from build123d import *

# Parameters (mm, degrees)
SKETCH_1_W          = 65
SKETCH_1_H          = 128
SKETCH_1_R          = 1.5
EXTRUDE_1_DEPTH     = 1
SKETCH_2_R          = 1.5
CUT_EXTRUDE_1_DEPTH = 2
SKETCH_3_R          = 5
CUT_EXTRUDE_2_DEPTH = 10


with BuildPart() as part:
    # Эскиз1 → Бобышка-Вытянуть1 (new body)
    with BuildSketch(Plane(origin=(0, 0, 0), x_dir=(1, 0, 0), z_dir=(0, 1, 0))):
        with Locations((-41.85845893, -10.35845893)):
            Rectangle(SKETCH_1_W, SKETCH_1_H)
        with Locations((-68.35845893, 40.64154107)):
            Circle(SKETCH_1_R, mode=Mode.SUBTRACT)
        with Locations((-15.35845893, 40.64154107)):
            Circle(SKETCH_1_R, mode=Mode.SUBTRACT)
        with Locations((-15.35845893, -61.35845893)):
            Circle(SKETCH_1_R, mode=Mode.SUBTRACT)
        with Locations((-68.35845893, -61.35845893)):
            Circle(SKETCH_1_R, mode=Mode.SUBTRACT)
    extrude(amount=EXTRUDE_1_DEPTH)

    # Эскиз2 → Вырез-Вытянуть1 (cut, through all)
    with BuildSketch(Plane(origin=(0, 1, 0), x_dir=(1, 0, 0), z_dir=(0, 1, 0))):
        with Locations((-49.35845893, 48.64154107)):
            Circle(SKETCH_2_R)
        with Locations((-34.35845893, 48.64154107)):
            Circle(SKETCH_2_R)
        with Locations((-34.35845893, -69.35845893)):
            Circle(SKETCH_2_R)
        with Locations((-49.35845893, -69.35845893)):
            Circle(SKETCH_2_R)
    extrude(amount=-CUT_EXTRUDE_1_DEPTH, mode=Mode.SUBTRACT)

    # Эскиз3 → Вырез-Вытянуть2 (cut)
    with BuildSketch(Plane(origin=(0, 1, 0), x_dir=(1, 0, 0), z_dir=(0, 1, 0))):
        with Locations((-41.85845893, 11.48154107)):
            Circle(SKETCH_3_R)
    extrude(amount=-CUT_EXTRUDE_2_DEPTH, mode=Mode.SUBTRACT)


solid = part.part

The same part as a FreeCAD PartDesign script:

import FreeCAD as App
import Part
import Sketcher

doc = App.newDocument("Part")
params = doc.addObject("Spreadsheet::Sheet", "Params")
for row, (alias, value) in enumerate([
    ("sketch1_diameter", "3 mm"),
    ("sketch1_width", "65 mm"),
    ("sketch1_height", "128 mm"),
    ("pad1_length", "1 mm"),
    ("sketch2_diameter", "3 mm"),
    ("sketch3_diameter", "10 mm"),
    ("pocket2_length", "10 mm"),
], start=1):
    params.set(f"A{row}", alias)
    params.set(f"B{row}", "=" + value)
    params.setAlias(f"B{row}", alias)

body = doc.addObject("PartDesign::Body", "Body")

sketch1 = body.newObject("Sketcher::SketchObject", "Sketch")
sketch1.AttachmentSupport = (doc.getObject("XZ_Plane"), [""])
sketch1.MapMode = "FlatFace"
sketch1.addGeometry([
    Part.LineSegment(App.Vector(-74.358459, -53.641541, 0), App.Vector(-74.358459, 74.358459, 0)),
    Part.LineSegment(App.Vector(-74.358459, 74.358459, 0), App.Vector(-9.358459, 74.358459, 0)),
    Part.LineSegment(App.Vector(-9.358459, 74.358459, 0), App.Vector(-9.358459, -53.641541, 0)),
    Part.LineSegment(App.Vector(-9.358459, -53.641541, 0), App.Vector(-74.358459, -53.641541, 0)),
    Part.Circle(App.Vector(-68.358459, 61.358459, 0), App.Vector(0, 0, 1), 1.5),
    Part.Circle(App.Vector(-15.358459, 61.358459, 0), App.Vector(0, 0, 1), 1.5),
    Part.Circle(App.Vector(-68.358459, -40.641541, 0), App.Vector(0, 0, 1), 1.5),
    Part.Circle(App.Vector(-15.358459, -40.641541, 0), App.Vector(0, 0, 1), 1.5),
], False)
sketch1.addConstraint([
    Sketcher.Constraint("Coincident", 0, 2, 1, 1),
    Sketcher.Constraint("Coincident", 1, 2, 2, 1),
    Sketcher.Constraint("Coincident", 2, 2, 3, 1),
    Sketcher.Constraint("Coincident", 3, 2, 0, 1),
    Sketcher.Constraint("Vertical", 0),
    Sketcher.Constraint("Horizontal", 1),
    Sketcher.Constraint("Vertical", 2),
    Sketcher.Constraint("Horizontal", 3),
    Sketcher.Constraint("Equal", 4, 5),
    Sketcher.Constraint("Equal", 5, 6),
    Sketcher.Constraint("Equal", 6, 7),
    Sketcher.Constraint("Horizontal", 4, 3, 5, 3),
    Sketcher.Constraint("Horizontal", 6, 3, 7, 3),
    Sketcher.Constraint("Vertical", 4, 3, 6, 3),
    Sketcher.Constraint("Vertical", 5, 3, 7, 3),
    Sketcher.Constraint("Diameter", 4, 3.0),
    Sketcher.Constraint("DistanceX", 1, 1, 1, 2, 65.0),
    Sketcher.Constraint("DistanceY", 0, 1, 0, 2, 128.0),
    Sketcher.Constraint("DistanceX", 4, 3, 5, 3, 53.0),
    Sketcher.Constraint("DistanceY", 6, 3, 4, 3, 102.0),
    Sketcher.Constraint("DistanceX", 0, 2, 4, 3, 6.0),
    Sketcher.Constraint("DistanceY", 4, 3, 0, 2, 13.0),
    Sketcher.Constraint("DistanceX", 4, 3, -1, 1, 68.358459),
    Sketcher.Constraint("DistanceY", -1, 1, 4, 3, 61.358459),
])
sketch1.setExpression("Constraints[15]", "Params.sketch1_diameter")
sketch1.setExpression("Constraints[16]", "Params.sketch1_width")
sketch1.setExpression("Constraints[17]", "Params.sketch1_height")
pad1 = body.newObject("PartDesign::Pad", "Pad")
pad1.Profile = sketch1
pad1.setExpression("Length", "Params.pad1_length")
pad1.Reversed = True

sketch2 = body.newObject("Sketcher::SketchObject", "Sketch001")
sketch2.AttachmentSupport = (doc.getObject("XZ_Plane"), [""])
sketch2.MapMode = "FlatFace"
sketch2.AttachmentOffset = App.Placement(App.Vector(0, 0, -1), App.Rotation())
sketch2.addGeometry([
    Part.Circle(App.Vector(-49.358459, -48.641541, 0), App.Vector(0, 0, 1), 1.5),
    Part.Circle(App.Vector(-34.358459, -48.641541, 0), App.Vector(0, 0, 1), 1.5),
    Part.Circle(App.Vector(-34.358459, 69.358459, 0), App.Vector(0, 0, 1), 1.5),
    Part.Circle(App.Vector(-49.358459, 69.358459, 0), App.Vector(0, 0, 1), 1.5),
], False)
sketch2.addConstraint([
    Sketcher.Constraint("Equal", 0, 1),
    Sketcher.Constraint("Equal", 1, 2),
    Sketcher.Constraint("Equal", 2, 3),
    Sketcher.Constraint("Horizontal", 0, 3, 1, 3),
    Sketcher.Constraint("Horizontal", 2, 3, 3, 3),
    Sketcher.Constraint("Vertical", 1, 3, 2, 3),
    Sketcher.Constraint("Vertical", 0, 3, 3, 3),
    Sketcher.Constraint("Diameter", 0, 3.0),
    Sketcher.Constraint("DistanceX", 0, 3, 1, 3, 15.0),
    Sketcher.Constraint("DistanceY", 1, 3, 2, 3, 118.0),
    Sketcher.Constraint("DistanceX", 0, 3, -1, 1, 49.358459),
    Sketcher.Constraint("DistanceY", 0, 3, -1, 1, 48.641541),
])
sketch2.setExpression("Constraints[7]", "Params.sketch2_diameter")
pocket1 = body.newObject("PartDesign::Pocket", "Pocket")
pocket1.Profile = sketch2
pocket1.Type = "ThroughAll"
pocket1.Reversed = True

sketch3 = body.newObject("Sketcher::SketchObject", "Sketch002")
sketch3.AttachmentSupport = (doc.getObject("XZ_Plane"), [""])
sketch3.MapMode = "FlatFace"
sketch3.AttachmentOffset = App.Placement(App.Vector(0, 0, -1), App.Rotation())
sketch3.addGeometry(Part.Circle(App.Vector(-41.858459, -11.481541, 0), App.Vector(0, 0, 1), 5), False)
sketch3.addConstraint([
    Sketcher.Constraint("Diameter", 0, 10.0),
    Sketcher.Constraint("DistanceX", 0, 3, -1, 1, 41.858459),
    Sketcher.Constraint("DistanceY", 0, 3, -1, 1, 11.481541),
])
sketch3.setExpression("Constraints[0]", "Params.sketch3_diameter")
pocket2 = body.newObject("PartDesign::Pocket", "Pocket001")
pocket2.Profile = sketch3
pocket2.setExpression("Length", "Params.pocket2_length")
pocket2.Reversed = True

doc.recompute()
